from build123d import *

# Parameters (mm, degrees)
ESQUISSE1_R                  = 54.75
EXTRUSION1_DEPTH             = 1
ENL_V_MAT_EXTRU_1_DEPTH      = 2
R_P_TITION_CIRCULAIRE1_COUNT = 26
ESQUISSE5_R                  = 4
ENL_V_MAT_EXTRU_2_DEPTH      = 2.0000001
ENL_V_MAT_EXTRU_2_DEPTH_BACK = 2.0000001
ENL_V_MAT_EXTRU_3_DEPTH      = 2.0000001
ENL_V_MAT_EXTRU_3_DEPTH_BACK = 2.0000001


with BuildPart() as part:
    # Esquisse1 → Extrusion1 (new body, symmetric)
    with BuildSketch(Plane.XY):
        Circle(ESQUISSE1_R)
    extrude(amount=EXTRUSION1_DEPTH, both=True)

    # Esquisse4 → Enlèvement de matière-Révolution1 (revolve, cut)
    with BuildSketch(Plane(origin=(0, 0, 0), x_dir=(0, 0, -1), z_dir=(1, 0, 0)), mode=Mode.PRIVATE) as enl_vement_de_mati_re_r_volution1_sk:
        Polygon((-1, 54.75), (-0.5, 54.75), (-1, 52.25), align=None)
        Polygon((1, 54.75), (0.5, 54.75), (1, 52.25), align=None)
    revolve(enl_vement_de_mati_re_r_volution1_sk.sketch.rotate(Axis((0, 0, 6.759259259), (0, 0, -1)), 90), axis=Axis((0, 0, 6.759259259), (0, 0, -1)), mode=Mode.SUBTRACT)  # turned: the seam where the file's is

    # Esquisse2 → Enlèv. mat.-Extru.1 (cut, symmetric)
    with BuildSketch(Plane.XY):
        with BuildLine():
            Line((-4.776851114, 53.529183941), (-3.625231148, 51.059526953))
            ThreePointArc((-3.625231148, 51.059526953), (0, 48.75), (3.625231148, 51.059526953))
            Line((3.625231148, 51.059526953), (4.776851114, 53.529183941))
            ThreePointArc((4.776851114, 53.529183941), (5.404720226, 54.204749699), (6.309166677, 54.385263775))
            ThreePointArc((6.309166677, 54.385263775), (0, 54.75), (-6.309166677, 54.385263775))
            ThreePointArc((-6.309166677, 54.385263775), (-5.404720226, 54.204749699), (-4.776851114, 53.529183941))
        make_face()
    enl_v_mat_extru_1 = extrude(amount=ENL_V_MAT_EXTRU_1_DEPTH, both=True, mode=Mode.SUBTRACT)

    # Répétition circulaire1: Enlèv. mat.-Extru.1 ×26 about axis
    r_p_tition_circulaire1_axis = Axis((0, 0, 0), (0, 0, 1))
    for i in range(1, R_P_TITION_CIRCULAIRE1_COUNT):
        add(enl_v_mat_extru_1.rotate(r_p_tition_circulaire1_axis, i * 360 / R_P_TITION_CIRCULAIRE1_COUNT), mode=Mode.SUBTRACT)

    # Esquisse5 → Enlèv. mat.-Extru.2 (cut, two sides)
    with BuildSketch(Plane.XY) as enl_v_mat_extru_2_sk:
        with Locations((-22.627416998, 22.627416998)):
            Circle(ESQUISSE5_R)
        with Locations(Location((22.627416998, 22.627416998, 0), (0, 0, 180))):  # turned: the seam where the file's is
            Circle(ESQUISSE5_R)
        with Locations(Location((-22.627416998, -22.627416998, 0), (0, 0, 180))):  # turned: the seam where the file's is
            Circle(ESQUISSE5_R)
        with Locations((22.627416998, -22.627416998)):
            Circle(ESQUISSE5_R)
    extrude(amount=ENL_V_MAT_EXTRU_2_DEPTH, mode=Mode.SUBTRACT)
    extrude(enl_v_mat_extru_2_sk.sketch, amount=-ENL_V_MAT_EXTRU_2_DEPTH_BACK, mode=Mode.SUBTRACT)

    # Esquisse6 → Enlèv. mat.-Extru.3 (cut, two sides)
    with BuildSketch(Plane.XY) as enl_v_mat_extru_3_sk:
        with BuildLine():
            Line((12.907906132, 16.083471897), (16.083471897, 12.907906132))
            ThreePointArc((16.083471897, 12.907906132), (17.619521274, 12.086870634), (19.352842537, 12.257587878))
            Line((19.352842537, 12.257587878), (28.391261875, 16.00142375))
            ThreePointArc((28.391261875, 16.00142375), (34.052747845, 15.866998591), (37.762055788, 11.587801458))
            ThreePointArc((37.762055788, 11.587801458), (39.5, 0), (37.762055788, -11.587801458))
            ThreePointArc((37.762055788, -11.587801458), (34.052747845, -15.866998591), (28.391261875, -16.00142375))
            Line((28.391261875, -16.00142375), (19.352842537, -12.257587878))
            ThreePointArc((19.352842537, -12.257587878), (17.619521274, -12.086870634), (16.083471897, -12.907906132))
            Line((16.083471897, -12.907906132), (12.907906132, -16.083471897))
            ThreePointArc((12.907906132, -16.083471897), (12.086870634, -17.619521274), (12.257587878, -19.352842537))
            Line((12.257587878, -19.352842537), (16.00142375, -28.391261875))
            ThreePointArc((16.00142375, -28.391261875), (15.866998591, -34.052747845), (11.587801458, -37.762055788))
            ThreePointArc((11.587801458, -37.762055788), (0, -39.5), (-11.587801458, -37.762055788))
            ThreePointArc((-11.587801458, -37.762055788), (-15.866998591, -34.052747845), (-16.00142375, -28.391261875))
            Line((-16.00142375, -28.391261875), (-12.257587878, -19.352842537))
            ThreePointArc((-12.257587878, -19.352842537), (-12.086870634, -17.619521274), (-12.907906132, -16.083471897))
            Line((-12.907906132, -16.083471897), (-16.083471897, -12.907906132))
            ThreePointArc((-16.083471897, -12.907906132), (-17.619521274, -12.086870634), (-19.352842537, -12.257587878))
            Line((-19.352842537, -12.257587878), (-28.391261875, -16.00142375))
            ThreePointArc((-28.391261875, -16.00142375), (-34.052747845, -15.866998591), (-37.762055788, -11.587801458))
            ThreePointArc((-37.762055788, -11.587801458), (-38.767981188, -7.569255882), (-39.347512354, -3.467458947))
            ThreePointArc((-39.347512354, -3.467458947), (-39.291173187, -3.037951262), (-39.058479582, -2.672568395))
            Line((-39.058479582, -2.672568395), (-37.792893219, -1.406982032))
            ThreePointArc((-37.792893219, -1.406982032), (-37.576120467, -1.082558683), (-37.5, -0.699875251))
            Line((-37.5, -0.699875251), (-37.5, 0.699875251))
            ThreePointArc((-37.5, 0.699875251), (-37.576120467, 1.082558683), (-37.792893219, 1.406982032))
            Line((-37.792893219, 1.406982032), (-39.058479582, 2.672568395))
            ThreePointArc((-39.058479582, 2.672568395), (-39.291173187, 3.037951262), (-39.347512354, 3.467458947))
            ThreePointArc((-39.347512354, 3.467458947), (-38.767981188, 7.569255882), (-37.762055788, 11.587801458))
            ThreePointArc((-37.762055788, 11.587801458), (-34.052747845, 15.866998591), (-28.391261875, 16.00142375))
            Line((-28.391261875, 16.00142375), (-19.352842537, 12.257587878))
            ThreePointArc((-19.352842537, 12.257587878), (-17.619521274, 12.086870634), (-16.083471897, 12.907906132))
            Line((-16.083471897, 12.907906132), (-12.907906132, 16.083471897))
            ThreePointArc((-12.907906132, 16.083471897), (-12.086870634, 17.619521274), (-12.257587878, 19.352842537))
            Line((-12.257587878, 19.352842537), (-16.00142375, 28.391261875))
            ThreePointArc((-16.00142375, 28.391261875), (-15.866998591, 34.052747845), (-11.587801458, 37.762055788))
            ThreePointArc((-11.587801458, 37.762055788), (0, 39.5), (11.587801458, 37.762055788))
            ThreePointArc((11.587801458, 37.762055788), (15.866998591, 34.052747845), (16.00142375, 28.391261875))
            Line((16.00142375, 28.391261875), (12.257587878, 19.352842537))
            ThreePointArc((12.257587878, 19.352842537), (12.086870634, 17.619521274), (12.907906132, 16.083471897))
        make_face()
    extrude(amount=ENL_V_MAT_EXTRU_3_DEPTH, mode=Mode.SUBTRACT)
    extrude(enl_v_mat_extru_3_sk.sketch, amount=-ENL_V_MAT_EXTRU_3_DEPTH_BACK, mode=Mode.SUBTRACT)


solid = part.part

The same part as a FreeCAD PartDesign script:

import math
import FreeCAD as App
import Part
import Sketcher
Q = App.Units.Quantity


def add_polygon(sketch, points):
    """Adds a closed chain of lines whose ends are joined by coincident constraints."""
    first, n = sketch.GeometryCount, len(points)
    for a, b in zip(points, points[1:] + points[:1]):
        sketch.addGeometry(Part.LineSegment(App.Vector(*a, 0), App.Vector(*b, 0)), False)
    for i in range(n):
        sketch.addConstraint(Sketcher.Constraint("Coincident", first + i, 2, first + (i + 1) % n, 1))

doc = App.newDocument("Part")
body = doc.addObject("PartDesign::Body", "Body")

sketch1 = doc.addObject("Sketcher::SketchObject", "Sketch")
body.addObject(sketch1)
sketch1.AttachmentSupport = (doc.XY_Plane, [""])
sketch1.MapMode = "FlatFace"
sketch1.addGeometry(Part.Circle(App.Vector(0, 0, 0), App.Vector(0, 0, 1), 55), False)
sketch1.addConstraint(Sketcher.Constraint("Coincident", 0, 3, -1, 1))
sketch1.addConstraint(Sketcher.Constraint("Diameter", 0, Q("109.5 mm")))
pad1 = doc.addObject("PartDesign::Pad", "Pad")
body.addObject(pad1)
pad1.Profile = sketch1
pad1.Length = 2
pad1.Midplane = True

sketch2 = doc.addObject("Sketcher::SketchObject", "Sketch001")
body.addObject(sketch2)
sketch2.AttachmentSupport = (doc.YZ_Plane, [""])
sketch2.MapMode = "FlatFace"
add_polygon(sketch2, [(54.8, 0.5), (54.8, 1), (52.2, 1)])
add_polygon(sketch2, [(54.8, -1), (54.8, -0.5), (52.2, -1)])
sketch2.addConstraint(Sketcher.Constraint("Vertical", 0))
sketch2.addConstraint(Sketcher.Constraint("Horizontal", 1))
sketch2.addConstraint(Sketcher.Constraint("Vertical", 3))
sketch2.addConstraint(Sketcher.Constraint("Horizontal", 5))
sketch2.addConstraint(Sketcher.Constraint("Symmetric", 2, 2, 3, 2, -1))
sketch2.addConstraint(Sketcher.Constraint("Symmetric", 1, 2, 4, 2, -1))
sketch2.addConstraint(Sketcher.Constraint("DistanceX", 1, 2, 1, 1, Q("2.5 mm")))
sketch2.addConstraint(Sketcher.Constraint("DistanceY", 0, 1, 0, 2, Q("0.5 mm")))
sketch2.addConstraint(Sketcher.Constraint("DistanceY", -1, 1, 0, 2, Q("1 mm")))
sketch2.addConstraint(Sketcher.Constraint("DistanceX", -1, 1, 0, 2, Q("54.75 mm")))
groove = doc.addObject("PartDesign::Groove", "Groove")
body.addObject(groove)
groove.Profile = sketch2
groove.ReferenceAxis = (sketch2, ["V_Axis"])
groove.Angle = 360

sketch3 = doc.addObject("Sketcher::SketchObject", "Sketch002")
body.addObject(sketch3)
sketch3.AttachmentSupport = (doc.XY_Plane, [""])
sketch3.MapMode = "FlatFace"
sketch3.addGeometry(Part.LineSegment(App.Vector(-4.8, 53.5, 0), App.Vector(-3.6, 51.1, 0)), False)
sketch3.addGeometry(Part.ArcOfCircle(Part.Circle(App.Vector(0, 52.8, 0), App.Vector(0, 0, 1), 4), math.radians(-155), math.radians(-25)), False)
sketch3.addGeometry(Part.LineSegment(App.Vector(3.6, 51.1, 0), App.Vector(4.8, 53.5, 0)), False)
sketch3.addGeometry(Part.ArcOfCircle(Part.Circle(App.Vector(6.1, 52.9, 0), App.Vector(0, 0, 1), 1.5), math.radians(83), math.radians(155)), False)
sketch3.addGeometry(Part.ArcOfCircle(Part.Circle(App.Vector(0, 0, 0), App.Vector(0, 0, 1), 54.8), math.radians(83.38), math.radians(96.62)), False)
sketch3.addGeometry(Part.ArcOfCircle(Part.Circle(App.Vector(-6.1, 52.9, 0), App.Vector(0, 0, 1), 1.5), math.radians(25), math.radians(97)), False)
sketch3.addConstraint(Sketcher.Constraint("Tangent", 0, 2, 1, 1))
sketch3.addConstraint(Sketcher.Constraint("Tangent", 1, 2, 2, 1))
sketch3.addConstraint(Sketcher.Constraint("Tangent", 2, 2, 3, 2))
sketch3.addConstraint(Sketcher.Constraint("Tangent", 3, 1, 4, 1))
sketch3.addConstraint(Sketcher.Constraint("Tangent", 4, 2, 5, 2))
sketch3.addConstraint(Sketcher.Constraint("Tangent", 5, 1, 0, 1))
sketch3.addConstraint(Sketcher.Constraint("Coincident", 4, 3, -1, 1))
sketch3.addConstraint(Sketcher.Constraint("Equal", 3, 5))
sketch3.addConstraint(Sketcher.Constraint("Symmetric", 0, 2, 1, 2, -2))
sketch3.addConstraint(Sketcher.Constraint("Radius", 1, Q("4 mm")))
sketch3.addConstraint(Sketcher.Constraint("Radius", 3, Q("1.5 mm")))
sketch3.addConstraint(Sketcher.Constraint("Angle", 0, Q("-65 deg")))
sketch3.addConstraint(Sketcher.Constraint("Radius", 4, Q("54.75 mm")))
sketch3.addConstraint(Sketcher.Constraint("DistanceY", -1, 1, 1, 3, Q("52.75 mm")))
pocket1 = doc.addObject("PartDesign::Pocket", "Pocket")
body.addObject(pocket1)
pocket1.Profile = sketch3
pocket1.Length = 4
pocket1.Midplane = True
doc.recompute()

polarpattern = doc.addObject("PartDesign::PolarPattern", "PolarPattern")
body.addObject(polarpattern)
polarpattern.Originals = [pocket1]
polarpattern.Axis = (doc.Z_Axis, [""])
polarpattern.Angle = 360
polarpattern.Occurrences = 26
body.Tip = polarpattern

sketch4 = doc.addObject("Sketcher::SketchObject", "Sketch003")
body.addObject(sketch4)
sketch4.AttachmentSupport = (doc.XY_Plane, [""])
sketch4.MapMode = "FlatFace"
sketch4.addGeometry(Part.Circle(App.Vector(-22.6, 22.6, 0), App.Vector(0, 0, 1), 4), False)
sketch4.addGeometry(Part.Circle(App.Vector(22.6, 22.6, 0), App.Vector(0, 0, 1), 4), False)
sketch4.addGeometry(Part.Circle(App.Vector(-22.6, -22.6, 0), App.Vector(0, 0, 1), 4), False)
sketch4.addGeometry(Part.Circle(App.Vector(22.6, -22.6, 0), App.Vector(0, 0, 1), 4), False)
sketch4.addConstraint(Sketcher.Constraint("Equal", 0, 1))
sketch4.addConstraint(Sketcher.Constraint("Equal", 1, 2))
sketch4.addConstraint(Sketcher.Constraint("Equal", 2, 3))
sketch4.addConstraint(Sketcher.Constraint("Symmetric", 1, 3, 2, 3, -1, 1))
sketch4.addConstraint(Sketcher.Constraint("Symmetric", 0, 3, 3, 3, -1, 1))
sketch4.addConstraint(Sketcher.Constraint("Symmetric", 0, 3, 1, 3, -2))
sketch4.addConstraint(Sketcher.Constraint("Diameter", 0, Q("8 mm")))
sketch4.addConstraint(Sketcher.Constraint("DistanceX", 0, 3, -1, 1, Q("22.627417 mm")))
sketch4.addConstraint(Sketcher.Constraint("DistanceY", -1, 1, 0, 3, Q("22.627417 mm")))
pocket2 = doc.addObject("PartDesign::Pocket", "Pocket001")
body.addObject(pocket2)
pocket2.Profile = sketch4
pocket2.Type = "ThroughAll"
pocket2.Midplane = True

sketch5 = doc.addObject("Sketcher::SketchObject", "Sketch004")
body.addObject(sketch5)
sketch5.AttachmentSupport = (doc.XY_Plane, [""])
sketch5.MapMode = "FlatFace"
sketch5.addGeometry(Part.LineSegment(App.Vector(16.1, 12.9, 0), App.Vector(12.9, 16.1, 0)), False)
sketch5.addGeometry(Part.ArcOfCircle(Part.Circle(App.Vector(15, 18.2, 0), App.Vector(0, 0, 1), 3), math.radians(157), math.radians(225)), False)
sketch5.addGeometry(Part.LineSegment(App.Vector(12.3, 19.4, 0), App.Vector(16, 28.4, 0)), False)
sketch5.addGeometry(Part.ArcOfCircle(Part.Circle(App.Vector(9.5, 31.1, 0), App.Vector(0, 0, 1), 7), math.radians(-23), math.radians(73)), False)
sketch5.addGeometry(Part.ArcOfCircle(Part.Circle(App.Vector(0, 0, 0), App.Vector(0, 0, 1), 39.5), math.radians(73), math.radians(107)), False)
sketch5.addGeometry(Part.ArcOfCircle(Part.Circle(App.Vector(-9.5, 31.1, 0), App.Vector(0, 0, 1), 7), math.radians(107), math.radians(203)), False)
sketch5.addGeometry(Part.LineSegment(App.Vector(-16, 28.4, 0), App.Vector(-12.3, 19.4, 0)), False)
sketch5.addGeometry(Part.ArcOfCircle(Part.Circle(App.Vector(-15, 18.2, 0), App.Vector(0, 0, 1), 3), math.radians(-45), math.radians(23)), False)
sketch5.addGeometry(Part.LineSegment(App.Vector(-12.9, 16.1, 0), App.Vector(-16.1, 12.9, 0)), False)
sketch5.addGeometry(Part.ArcOfCircle(Part.Circle(App.Vector(-18.2, 15, 0), App.Vector(0, 0, 1), 3), math.radians(-113), math.radians(-45)), False)
sketch5.addGeometry(Part.LineSegment(App.Vector(-19.4, 12.3, 0), App.Vector(-28.4, 16, 0)), False)
sketch5.addGeometry(Part.ArcOfCircle(Part.Circle(App.Vector(-31.1, 9.5, 0), App.Vector(0, 0, 1), 7), math.radians(67), math.radians(163)), False)
sketch5.addGeometry(Part.ArcOfCircle(Part.Circle(App.Vector(0, 0, 0), App.Vector(0, 0, 1), 39.5), math.radians(162.94), math.radians(174.96)), False)
sketch5.addGeometry(Part.ArcOfCircle(Part.Circle(App.Vector(-38.4, 3.4, 0), App.Vector(0, 0, 1), 1), math.radians(175), math.radians(225)), False)
sketch5.addGeometry(Part.LineSegment(App.Vector(-39.1, 2.7, 0), App.Vector(-37.8, 1.4, 0)), False)
sketch5.addGeometry(Part.ArcOfCircle(Part.Circle(App.Vector(-38.5, 0.7, 0), App.Vector(0, 0, 1), 1), math.radians(0), math.radians(45)), False)
sketch5.addGeometry(Part.LineSegment(App.Vector(-37.5, 0.7, 0), App.Vector(-37.5, -0.7, 0)), False)
sketch5.addGeometry(Part.ArcOfCircle(Part.Circle(App.Vector(-38.5, -0.7, 0), App.Vector(0, 0, 1), 1), math.radians(-45), math.radians(0)), False)
sketch5.addGeometry(Part.LineSegment(App.Vector(-37.8, -1.4, 0), App.Vector(-39.1, -2.7, 0)), False)
sketch5.addGeometry(Part.ArcOfCircle(Part.Circle(App.Vector(-38.4, -3.4, 0), App.Vector(0, 0, 1), 1), math.radians(135), math.radians(185)), False)
sketch5.addGeometry(Part.ArcOfCircle(Part.Circle(App.Vector(0, 0, 0), App.Vector(0, 0, 1), 39.5), math.radians(-174.96), math.radians(-162.94)), False)
sketch5.addGeometry(Part.ArcOfCircle(Part.Circle(App.Vector(-31.1, -9.5, 0), App.Vector(0, 0, 1), 7), math.radians(-163), math.radians(-67)), False)
sketch5.addGeometry(Part.LineSegment(App.Vector(-28.4, -16, 0), App.Vector(-19.4, -12.3, 0)), False)
sketch5.addGeometry(Part.ArcOfCircle(Part.Circle(App.Vector(-18.2, -15, 0), App.Vector(0, 0, 1), 3), math.radians(45), math.radians(113)), False)
sketch5.addGeometry(Part.LineSegment(App.Vector(-16.1, -12.9, 0), App.Vector(-12.9, -16.1, 0)), False)
sketch5.addGeometry(Part.ArcOfCircle(Part.Circle(App.Vector(-15, -18.2, 0), App.Vector(0, 0, 1), 3), math.radians(-23), math.radians(45)), False)
sketch5.addGeometry(Part.LineSegment(App.Vector(-12.3, -19.4, 0), App.Vector(-16, -28.4, 0)), False)
sketch5.addGeometry(Part.ArcOfCircle(Part.Circle(App.Vector(-9.5, -31.1, 0), App.Vector(0, 0, 1), 7), math.radians(157), math.radians(253)), False)
sketch5.addGeometry(Part.ArcOfCircle(Part.Circle(App.Vector(0, 0, 0), App.Vector(0, 0, 1), 39.5), math.radians(-107), math.radians(-73)), False)
sketch5.addGeometry(Part.ArcOfCircle(Part.Circle(App.Vector(9.5, -31.1, 0), App.Vector(0, 0, 1), 7), math.radians(-73), math.radians(23)), False)
sketch5.addGeometry(Part.LineSegment(App.Vector(16, -28.4, 0), App.Vector(12.3, -19.4, 0)), False)
sketch5.addGeometry(Part.ArcOfCircle(Part.Circle(App.Vector(15, -18.2, 0), App.Vector(0, 0, 1), 3), math.radians(135), math.radians(203)), False)
sketch5.addGeometry(Part.LineSegment(App.Vector(12.9, -16.1, 0), App.Vector(16.1, -12.9, 0)), False)
sketch5.addGeometry(Part.ArcOfCircle(Part.Circle(App.Vector(18.2, -15, 0), App.Vector(0, 0, 1), 3), math.radians(67), math.radians(135)), False)
sketch5.addGeometry(Part.LineSegment(App.Vector(19.4, -12.3, 0), App.Vector(28.4, -16, 0)), False)
sketch5.addGeometry(Part.ArcOfCircle(Part.Circle(App.Vector(31.1, -9.5, 0), App.Vector(0, 0, 1), 7), math.radians(-113), math.radians(-17)), False)
sketch5.addGeometry(Part.ArcOfCircle(Part.Circle(App.Vector(0, 0, 0), App.Vector(0, 0, 1), 39.5), math.radians(-17), math.radians(17)), False)
sketch5.addGeometry(Part.ArcOfCircle(Part.Circle(App.Vector(31.1, 9.5, 0), App.Vector(0, 0, 1), 7), math.radians(17), math.radians(113)), False)
sketch5.addGeometry(Part.LineSegment(App.Vector(28.4, 16, 0), App.Vector(19.4, 12.3, 0)), False)
sketch5.addGeometry(Part.ArcOfCircle(Part.Circle(App.Vector(18.2, 15, 0), App.Vector(0, 0, 1), 3), math.radians(-135), math.radians(-67)), False)
sketch5.addConstraint(Sketcher.Constraint("Tangent", 0, 2, 1, 2))
sketch5.addConstraint(Sketcher.Constraint("Tangent", 1, 1, 2, 1))
sketch5.addConstraint(Sketcher.Constraint("Tangent", 2, 2, 3, 1))
sketch5.addConstraint(Sketcher.Constraint("Tangent", 3, 2, 4, 1))
sketch5.addConstraint(Sketcher.Constraint("Tangent", 4, 2, 5, 1))
sketch5.addConstraint(Sketcher.Constraint("Tangent", 5, 2, 6, 1))
sketch5.addConstraint(Sketcher.Constraint("Tangent", 6, 2, 7, 2))
sketch5.addConstraint(Sketcher.Constraint("Tangent", 7, 1, 8, 1))
sketch5.addConstraint(Sketcher.Constraint("Tangent", 8, 2, 9, 2))
sketch5.addConstraint(Sketcher.Constraint("Tangent", 9, 1, 10, 1))
sketch5.addConstraint(Sketcher.Constraint("Tangent", 10, 2, 11, 1))
sketch5.addConstraint(Sketcher.Constraint("Tangent", 11, 2, 12, 1))
sketch5.addConstraint(Sketcher.Constraint("Tangent", 12, 2, 13, 1))
sketch5.addConstraint(Sketcher.Constraint("Tangent", 13, 2, 14, 1))
sketch5.addConstraint(Sketcher.Constraint("Tangent", 14, 2, 15, 2))
sketch5.addConstraint(Sketcher.Constraint("Tangent", 15, 1, 16, 1))
sketch5.addConstraint(Sketcher.Constraint("Tangent", 16, 2, 17, 2))
sketch5.addConstraint(Sketcher.Constraint("Tangent", 17, 1, 18, 1))
sketch5.addConstraint(Sketcher.Constraint("Tangent", 18, 2, 19, 1))
sketch5.addConstraint(Sketcher.Constraint("Tangent", 19, 2, 20, 1))
sketch5.addConstraint(Sketcher.Constraint("Tangent", 20, 2, 21, 1))
sketch5.addConstraint(Sketcher.Constraint("Tangent", 21, 2, 22, 1))
sketch5.addConstraint(Sketcher.Constraint("Tangent", 22, 2, 23, 2))
sketch5.addConstraint(Sketcher.Constraint("Tangent", 23, 1, 24, 1))
sketch5.addConstraint(Sketcher.Constraint("Tangent", 24, 2, 25, 2))
sketch5.addConstraint(Sketcher.Constraint("Tangent", 25, 1, 26, 1))
sketch5.addConstraint(Sketcher.Constraint("Tangent", 26, 2, 27, 1))
sketch5.addConstraint(Sketcher.Constraint("Tangent", 27, 2, 28, 1))
sketch5.addConstraint(Sketcher.Constraint("Tangent", 28, 2, 29, 1))
sketch5.addConstraint(Sketcher.Constraint("Tangent", 29, 2, 30, 1))
sketch5.addConstraint(Sketcher.Constraint("Tangent", 30, 2, 31, 2))
sketch5.addConstraint(Sketcher.Constraint("Tangent", 31, 1, 32, 1))
sketch5.addConstraint(Sketcher.Constraint("Tangent", 32, 2, 33, 2))
sketch5.addConstraint(Sketcher.Constraint("Tangent", 33, 1, 34, 1))
sketch5.addConstraint(Sketcher.Constraint("Tangent", 34, 2, 35, 1))
sketch5.addConstraint(Sketcher.Constraint("Tangent", 35, 2, 36, 1))
sketch5.addConstraint(Sketcher.Constraint("Tangent", 36, 2, 37, 1))
sketch5.addConstraint(Sketcher.Constraint("Tangent", 37, 2, 38, 1))
sketch5.addConstraint(Sketcher.Constraint("Tangent", 38, 2, 39, 2))
sketch5.addConstraint(Sketcher.Constraint("Tangent", 39, 1, 0, 1))
sketch5.addConstraint(Sketcher.Constraint("Vertical", 16))
sketch5.addConstraint(Sketcher.Constraint("Coincident", 4, 3, -1, 1))
sketch5.addConstraint(Sketcher.Constraint("Coincident", 12, 3, -1, 1))
sketch5.addConstraint(Sketcher.Constraint("Coincident", 20, 3, -1, 1))
sketch5.addConstraint(Sketcher.Constraint("Coincident", 28, 3, -1, 1))
sketch5.addConstraint(Sketcher.Constraint("Coincident", 36, 3, -1, 1))
sketch5.addConstraint(Sketcher.Constraint("Equal", 3, 5))
sketch5.addConstraint(Sketcher.Constraint("Equal", 1, 7))
sketch5.addConstraint(Sketcher.Constraint("Equal", 7, 9))
sketch5.addConstraint(Sketcher.Constraint("Equal", 5, 11))
sketch5.addConstraint(Sketcher.Constraint("Equal", 4, 12))
sketch5.addConstraint(Sketcher.Constraint("Equal", 13, 15))
sketch5.addConstraint(Sketcher.Constraint("Equal", 15, 17))
sketch5.addConstraint(Sketcher.Constraint("Equal", 17, 19))
sketch5.addConstraint(Sketcher.Constraint("Equal", 12, 20))
sketch5.addConstraint(Sketcher.Constraint("Equal", 11, 21))
sketch5.addConstraint(Sketcher.Constraint("Equal", 9, 23))
sketch5.addConstraint(Sketcher.Constraint("Equal", 23, 25))
sketch5.addConstraint(Sketcher.Constraint("Equal", 21, 27))
sketch5.addConstraint(Sketcher.Constraint("Equal", 20, 28))
sketch5.addConstraint(Sketcher.Constraint("Equal", 27, 29))
sketch5.addConstraint(Sketcher.Constraint("Equal", 25, 31))
sketch5.addConstraint(Sketcher.Constraint("Equal", 31, 33))
sketch5.addConstraint(Sketcher.Constraint("Equal", 29, 35))
sketch5.addConstraint(Sketcher.Constraint("Equal", 28, 36))
sketch5.addConstraint(Sketcher.Constraint("Equal", 35, 37))
sketch5.addConstraint(Sketcher.Constraint("Equal", 33, 39))
sketch5.addConstraint(Sketcher.Constraint("Symmetric", 1, 3, 25, 3, -1, 1))
sketch5.addConstraint(Sketcher.Constraint("Symmetric", 7, 3, 31, 3, -1, 1))
sketch5.addConstraint(Sketcher.Constraint("Symmetric", 9, 3, 33, 3, -1, 1))
sketch5.addConstraint(Sketcher.Constraint("Symmetric", 23, 3, 39, 3, -1, 1))
sketch5.addConstraint(Sketcher.Constraint("Symmetric", 1, 3, 7, 3, -2))
sketch5.addConstraint(Sketcher.Constraint("Symmetric", 23, 3, 33, 3, -2))
sketch5.addConstraint(Sketcher.Constraint("Symmetric", 14, 2, 17, 1, -1))
sketch5.addConstraint(Sketcher.Constraint("Perpendicular", 0, 8))
sketch5.addConstraint(Sketcher.Constraint("Perpendicular", 2, 10))
sketch5.addConstraint(Sketcher.Constraint("Perpendicular", 8, 14))
sketch5.addConstraint(Sketcher.Constraint("Perpendicular", 6, 22))
sketch5.addConstraint(Sketcher.Constraint("Perpendicular", 10, 26))
sketch5.addConstraint(Sketcher.Constraint("Perpendicular", 22, 30))
sketch5.addConstraint(Sketcher.Constraint("Perpendicular", 26, 34))
sketch5.addConstraint(Sketcher.Constraint("Perpendicular", 30, 38))
sketch5.addConstraint(Sketcher.Constraint("Horizontal", 3, 3, 5, 3))
sketch5.addConstraint(Sketcher.Constraint("Equal", 6, 10))
sketch5.addConstraint(Sketcher.Constraint("Radius", 1, Q("3 mm")))
sketch5.addConstraint(Sketcher.Constraint("Radius", 3, Q("7 mm")))
sketch5.addConstraint(Sketcher.Constraint("Radius", 13, Q("1 mm")))
sketch5.addConstraint(Sketcher.Constraint("Radius", 4, Q("39.5 mm")))
sketch5.addConstraint(Sketcher.Constraint("Angle", 2, Q("67.5 deg")))
sketch5.addConstraint(Sketcher.Constraint("DistanceX", 15, 3, -1, 1, Q("38.5 mm")))
sketch5.addConstraint(Sketcher.Constraint("DistanceY", 16, 2, 16, 1, Q("1.399751 mm")))
sketch5.addConstraint(Sketcher.Constraint("DistanceX", -1, 1, 3, 2, Q("11.587801 mm")))
sketch5.addConstraint(Sketcher.Constraint("Distance", 0, Q("4.490928 mm")))
pocket3 = doc.addObject("PartDesign::Pocket", "Pocket002")
body.addObject(pocket3)
pocket3.Profile = sketch5
pocket3.Type = "ThroughAll"
pocket3.Midplane = True

doc.recompute()
